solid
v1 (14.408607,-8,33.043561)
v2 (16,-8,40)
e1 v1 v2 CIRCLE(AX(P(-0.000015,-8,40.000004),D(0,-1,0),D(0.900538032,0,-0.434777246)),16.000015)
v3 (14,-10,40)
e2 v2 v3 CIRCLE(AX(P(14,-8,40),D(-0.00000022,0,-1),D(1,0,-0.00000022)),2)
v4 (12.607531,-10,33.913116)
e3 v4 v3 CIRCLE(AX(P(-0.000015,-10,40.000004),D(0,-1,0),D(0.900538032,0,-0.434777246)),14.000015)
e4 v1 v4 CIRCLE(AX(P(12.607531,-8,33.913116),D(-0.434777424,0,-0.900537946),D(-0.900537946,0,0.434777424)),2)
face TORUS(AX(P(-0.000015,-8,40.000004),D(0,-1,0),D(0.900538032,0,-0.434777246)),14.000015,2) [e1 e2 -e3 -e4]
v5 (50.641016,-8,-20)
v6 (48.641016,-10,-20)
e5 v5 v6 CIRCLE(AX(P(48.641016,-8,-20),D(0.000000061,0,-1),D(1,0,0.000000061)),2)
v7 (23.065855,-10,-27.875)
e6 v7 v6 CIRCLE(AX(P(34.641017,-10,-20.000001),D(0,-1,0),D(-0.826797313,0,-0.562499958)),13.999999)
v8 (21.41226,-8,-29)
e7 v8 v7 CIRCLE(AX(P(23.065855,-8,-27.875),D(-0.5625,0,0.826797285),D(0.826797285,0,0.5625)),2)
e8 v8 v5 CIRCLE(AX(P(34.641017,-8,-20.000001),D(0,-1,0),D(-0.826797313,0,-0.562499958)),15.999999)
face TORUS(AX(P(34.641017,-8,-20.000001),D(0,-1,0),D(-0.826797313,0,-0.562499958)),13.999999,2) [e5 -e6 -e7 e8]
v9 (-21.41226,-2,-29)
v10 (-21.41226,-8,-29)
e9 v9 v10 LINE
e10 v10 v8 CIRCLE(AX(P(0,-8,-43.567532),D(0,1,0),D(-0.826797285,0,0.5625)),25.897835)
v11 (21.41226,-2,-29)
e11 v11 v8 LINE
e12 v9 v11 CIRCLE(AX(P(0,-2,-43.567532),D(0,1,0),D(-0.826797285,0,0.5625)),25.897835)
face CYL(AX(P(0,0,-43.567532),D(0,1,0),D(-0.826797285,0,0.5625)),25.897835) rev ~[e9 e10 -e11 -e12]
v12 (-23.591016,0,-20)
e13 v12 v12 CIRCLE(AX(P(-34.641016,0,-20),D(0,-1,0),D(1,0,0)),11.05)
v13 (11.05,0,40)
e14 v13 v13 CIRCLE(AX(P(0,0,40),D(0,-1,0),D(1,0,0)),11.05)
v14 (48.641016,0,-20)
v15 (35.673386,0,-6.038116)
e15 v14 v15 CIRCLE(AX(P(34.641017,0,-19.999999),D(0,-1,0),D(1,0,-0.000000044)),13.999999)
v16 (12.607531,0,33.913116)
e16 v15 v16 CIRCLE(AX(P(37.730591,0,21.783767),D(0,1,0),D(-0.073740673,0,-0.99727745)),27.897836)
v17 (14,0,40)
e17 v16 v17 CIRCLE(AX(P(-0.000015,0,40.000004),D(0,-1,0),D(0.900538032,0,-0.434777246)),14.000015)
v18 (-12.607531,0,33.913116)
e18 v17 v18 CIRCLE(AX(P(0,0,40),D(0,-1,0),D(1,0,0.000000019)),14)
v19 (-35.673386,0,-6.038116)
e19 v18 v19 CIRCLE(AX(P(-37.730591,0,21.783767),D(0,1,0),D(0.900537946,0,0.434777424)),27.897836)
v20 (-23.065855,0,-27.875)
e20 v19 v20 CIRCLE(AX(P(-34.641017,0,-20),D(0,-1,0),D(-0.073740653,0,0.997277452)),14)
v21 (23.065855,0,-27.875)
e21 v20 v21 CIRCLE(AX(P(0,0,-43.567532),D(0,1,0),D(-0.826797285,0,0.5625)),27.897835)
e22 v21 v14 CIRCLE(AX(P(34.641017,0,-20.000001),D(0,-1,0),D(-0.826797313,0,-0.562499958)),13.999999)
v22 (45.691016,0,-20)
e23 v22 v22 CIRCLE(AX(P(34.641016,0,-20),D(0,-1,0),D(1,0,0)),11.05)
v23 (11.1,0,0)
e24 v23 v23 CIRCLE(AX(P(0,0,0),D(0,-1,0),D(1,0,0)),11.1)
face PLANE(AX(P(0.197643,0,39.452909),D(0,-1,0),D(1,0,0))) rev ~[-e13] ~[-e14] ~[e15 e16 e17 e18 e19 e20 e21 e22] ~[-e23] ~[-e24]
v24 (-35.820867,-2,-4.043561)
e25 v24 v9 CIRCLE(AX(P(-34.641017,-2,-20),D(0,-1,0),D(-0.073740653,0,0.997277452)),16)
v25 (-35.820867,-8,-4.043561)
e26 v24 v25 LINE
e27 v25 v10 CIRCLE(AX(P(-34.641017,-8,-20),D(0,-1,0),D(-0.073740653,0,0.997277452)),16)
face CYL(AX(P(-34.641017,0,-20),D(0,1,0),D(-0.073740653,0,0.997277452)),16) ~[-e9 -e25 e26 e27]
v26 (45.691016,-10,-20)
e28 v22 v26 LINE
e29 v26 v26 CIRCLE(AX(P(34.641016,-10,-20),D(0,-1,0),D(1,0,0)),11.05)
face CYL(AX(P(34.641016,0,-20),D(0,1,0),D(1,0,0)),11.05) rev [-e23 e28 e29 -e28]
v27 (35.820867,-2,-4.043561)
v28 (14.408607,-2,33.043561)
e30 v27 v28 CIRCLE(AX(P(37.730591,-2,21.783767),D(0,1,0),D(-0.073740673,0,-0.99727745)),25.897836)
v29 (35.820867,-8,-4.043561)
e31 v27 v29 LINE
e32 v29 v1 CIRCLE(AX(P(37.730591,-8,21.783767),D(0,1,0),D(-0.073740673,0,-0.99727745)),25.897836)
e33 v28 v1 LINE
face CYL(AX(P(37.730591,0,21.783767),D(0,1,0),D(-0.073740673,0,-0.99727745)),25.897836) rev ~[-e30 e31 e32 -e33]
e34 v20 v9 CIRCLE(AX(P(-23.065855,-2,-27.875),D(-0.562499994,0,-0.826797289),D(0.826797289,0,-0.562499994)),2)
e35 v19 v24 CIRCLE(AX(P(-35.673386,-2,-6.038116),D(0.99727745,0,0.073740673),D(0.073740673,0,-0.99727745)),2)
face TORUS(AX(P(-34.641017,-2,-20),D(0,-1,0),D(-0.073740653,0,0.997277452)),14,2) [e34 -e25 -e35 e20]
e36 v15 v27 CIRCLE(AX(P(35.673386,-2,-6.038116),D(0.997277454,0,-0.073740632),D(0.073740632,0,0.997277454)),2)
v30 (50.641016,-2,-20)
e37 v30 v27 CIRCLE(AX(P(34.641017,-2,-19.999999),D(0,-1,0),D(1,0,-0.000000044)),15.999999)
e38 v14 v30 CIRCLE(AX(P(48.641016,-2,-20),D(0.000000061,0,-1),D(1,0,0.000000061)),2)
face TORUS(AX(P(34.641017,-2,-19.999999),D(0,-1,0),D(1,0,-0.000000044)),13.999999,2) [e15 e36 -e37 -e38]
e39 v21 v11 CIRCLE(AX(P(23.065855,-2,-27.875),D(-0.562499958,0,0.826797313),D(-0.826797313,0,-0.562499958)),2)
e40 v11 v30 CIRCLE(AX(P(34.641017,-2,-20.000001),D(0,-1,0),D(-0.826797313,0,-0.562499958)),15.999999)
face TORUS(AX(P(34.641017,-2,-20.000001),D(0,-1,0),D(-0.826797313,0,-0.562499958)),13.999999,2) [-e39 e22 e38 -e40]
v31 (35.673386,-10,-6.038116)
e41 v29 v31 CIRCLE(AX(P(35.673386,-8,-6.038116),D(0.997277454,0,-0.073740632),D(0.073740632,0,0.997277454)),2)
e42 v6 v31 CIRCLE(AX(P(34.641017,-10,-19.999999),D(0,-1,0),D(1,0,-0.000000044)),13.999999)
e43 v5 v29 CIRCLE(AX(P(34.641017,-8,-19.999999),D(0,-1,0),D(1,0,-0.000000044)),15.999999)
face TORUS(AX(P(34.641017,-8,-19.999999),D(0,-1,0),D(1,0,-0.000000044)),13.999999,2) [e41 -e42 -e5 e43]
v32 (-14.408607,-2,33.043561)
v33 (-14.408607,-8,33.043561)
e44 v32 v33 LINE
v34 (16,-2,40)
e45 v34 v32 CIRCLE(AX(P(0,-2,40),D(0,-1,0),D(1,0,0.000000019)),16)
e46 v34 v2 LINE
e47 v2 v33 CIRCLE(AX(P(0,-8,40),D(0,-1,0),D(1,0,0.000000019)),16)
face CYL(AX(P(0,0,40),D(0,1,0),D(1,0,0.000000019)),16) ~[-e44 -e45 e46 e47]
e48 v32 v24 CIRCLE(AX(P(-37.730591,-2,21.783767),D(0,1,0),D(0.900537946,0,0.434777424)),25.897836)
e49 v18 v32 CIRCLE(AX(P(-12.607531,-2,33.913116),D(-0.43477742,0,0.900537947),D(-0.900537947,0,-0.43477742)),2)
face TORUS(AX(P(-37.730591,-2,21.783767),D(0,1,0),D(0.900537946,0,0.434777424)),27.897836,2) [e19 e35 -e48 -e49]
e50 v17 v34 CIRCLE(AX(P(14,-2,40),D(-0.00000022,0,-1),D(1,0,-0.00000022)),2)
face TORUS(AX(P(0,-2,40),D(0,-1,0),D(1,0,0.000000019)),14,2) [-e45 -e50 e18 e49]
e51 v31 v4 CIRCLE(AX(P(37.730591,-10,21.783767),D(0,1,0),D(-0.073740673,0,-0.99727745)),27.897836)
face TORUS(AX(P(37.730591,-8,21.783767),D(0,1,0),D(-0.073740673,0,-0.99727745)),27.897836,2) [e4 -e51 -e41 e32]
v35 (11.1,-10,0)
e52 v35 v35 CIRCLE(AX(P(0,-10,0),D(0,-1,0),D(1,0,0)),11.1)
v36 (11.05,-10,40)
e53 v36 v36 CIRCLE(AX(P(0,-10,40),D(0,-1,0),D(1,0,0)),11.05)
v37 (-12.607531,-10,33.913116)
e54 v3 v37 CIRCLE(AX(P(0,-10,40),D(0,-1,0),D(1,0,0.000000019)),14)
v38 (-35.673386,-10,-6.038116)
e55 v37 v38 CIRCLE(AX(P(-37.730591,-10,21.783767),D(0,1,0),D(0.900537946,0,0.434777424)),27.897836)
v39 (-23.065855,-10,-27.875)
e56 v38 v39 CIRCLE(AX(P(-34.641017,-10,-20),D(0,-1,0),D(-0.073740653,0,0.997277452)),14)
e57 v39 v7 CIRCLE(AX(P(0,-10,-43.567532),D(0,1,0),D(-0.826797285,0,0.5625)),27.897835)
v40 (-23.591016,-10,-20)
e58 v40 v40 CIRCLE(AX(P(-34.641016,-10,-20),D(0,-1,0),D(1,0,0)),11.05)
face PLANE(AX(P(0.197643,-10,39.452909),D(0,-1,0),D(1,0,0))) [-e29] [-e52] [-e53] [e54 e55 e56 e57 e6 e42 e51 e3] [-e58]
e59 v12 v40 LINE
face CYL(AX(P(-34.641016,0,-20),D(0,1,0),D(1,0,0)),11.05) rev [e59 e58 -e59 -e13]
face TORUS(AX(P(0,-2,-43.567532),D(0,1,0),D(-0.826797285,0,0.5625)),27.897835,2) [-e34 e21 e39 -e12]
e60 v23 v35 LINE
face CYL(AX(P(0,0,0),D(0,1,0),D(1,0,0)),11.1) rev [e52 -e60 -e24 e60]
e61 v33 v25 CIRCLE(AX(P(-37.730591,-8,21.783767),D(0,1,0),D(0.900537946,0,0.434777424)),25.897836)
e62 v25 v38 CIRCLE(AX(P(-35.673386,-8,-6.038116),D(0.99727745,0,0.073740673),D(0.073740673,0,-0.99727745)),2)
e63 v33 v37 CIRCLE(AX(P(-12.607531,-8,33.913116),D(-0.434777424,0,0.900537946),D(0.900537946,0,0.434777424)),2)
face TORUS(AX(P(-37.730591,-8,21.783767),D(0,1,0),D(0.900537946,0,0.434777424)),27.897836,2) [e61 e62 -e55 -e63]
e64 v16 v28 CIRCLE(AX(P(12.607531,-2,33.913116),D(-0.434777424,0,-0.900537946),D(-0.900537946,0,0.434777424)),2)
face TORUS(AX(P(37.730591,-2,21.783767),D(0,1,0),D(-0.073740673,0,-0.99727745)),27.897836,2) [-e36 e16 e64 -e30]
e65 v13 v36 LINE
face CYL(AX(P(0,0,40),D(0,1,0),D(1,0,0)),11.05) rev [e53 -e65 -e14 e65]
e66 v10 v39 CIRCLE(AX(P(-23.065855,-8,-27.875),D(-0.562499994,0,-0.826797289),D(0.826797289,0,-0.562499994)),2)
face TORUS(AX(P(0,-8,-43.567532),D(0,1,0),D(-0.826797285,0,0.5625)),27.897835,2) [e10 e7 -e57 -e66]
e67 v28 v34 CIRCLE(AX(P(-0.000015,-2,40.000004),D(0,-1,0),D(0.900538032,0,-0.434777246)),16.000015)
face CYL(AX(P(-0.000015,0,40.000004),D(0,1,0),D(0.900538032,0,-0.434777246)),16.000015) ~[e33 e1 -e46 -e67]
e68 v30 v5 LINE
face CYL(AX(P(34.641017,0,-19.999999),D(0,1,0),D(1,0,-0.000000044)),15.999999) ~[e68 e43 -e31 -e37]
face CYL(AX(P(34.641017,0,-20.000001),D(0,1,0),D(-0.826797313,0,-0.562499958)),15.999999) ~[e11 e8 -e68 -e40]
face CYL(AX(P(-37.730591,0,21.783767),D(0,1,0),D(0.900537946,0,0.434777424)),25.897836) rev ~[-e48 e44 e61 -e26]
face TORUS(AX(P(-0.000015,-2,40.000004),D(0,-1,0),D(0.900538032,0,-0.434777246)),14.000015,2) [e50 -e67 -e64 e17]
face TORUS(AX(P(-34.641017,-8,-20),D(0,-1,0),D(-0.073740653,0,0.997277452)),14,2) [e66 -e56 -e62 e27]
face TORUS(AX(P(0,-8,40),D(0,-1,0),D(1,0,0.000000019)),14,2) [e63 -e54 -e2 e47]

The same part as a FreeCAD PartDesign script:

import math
import FreeCAD as App
import Part
import Sketcher


def edges_at(feature, points):
    """Names of the edges that pass closest to the given points."""
    edges = feature.Shape.Edges
    near = lambda p: min(range(len(edges)), key=lambda i: edges[i].distToShape(Part.Vertex(*p))[0])
    return sorted({f"Edge{near(p) + 1}" for p in points})

doc = App.newDocument("Part")
params = doc.addObject("Spreadsheet::Sheet", "Params")
for row, (alias, value) in enumerate([
    ("sketch1_radius", "16 mm"),
    ("sketch1_diameter", "22.1 mm"),
    ("sketch1_diameter2", "22.2 mm"),
    ("pad1_length", "10 mm"),
    ("fillet_radius", "2 mm"),
    ("fillet2_radius", "2 mm"),
], start=1):
    params.set(f"A{row}", alias)
    params.set(f"B{row}", "=" + value)
    params.setAlias(f"B{row}", alias)

body = doc.addObject("PartDesign::Body", "Body")

sketch1 = body.newObject("Sketcher::SketchObject", "Sketch")
sketch1.AttachmentSupport = (doc.getObject("XZ_Plane"), [""])
sketch1.MapMode = "FlatFace"
sketch1.addGeometry(Part.ArcOfCircle(Part.Circle(App.Vector(-0.000015, 40.000004, 0), App.Vector(0, 0, 1), 16.000015), math.radians(-25.771121), math.radians(-0.000013)), False)
sketch1.addGeometry(Part.ArcOfCircle(Part.Circle(App.Vector(0, 40, 0), App.Vector(0, 0, 1), 16), math.radians(0.000001), math.radians(205.771132)), False)
sketch1.addGeometry(Part.ArcOfCircle(Part.Circle(App.Vector(-37.730591, 21.783767, 0), App.Vector(0, 0, 1), 25.897836), math.radians(-85.771132), math.radians(25.771132)), False)
sketch1.addGeometry(Part.ArcOfCircle(Part.Circle(App.Vector(-34.641017, -20, 0), App.Vector(0, 0, 1), 16), math.radians(94.228867), math.radians(325.771134)), False)
sketch1.addGeometry(Part.ArcOfCircle(Part.Circle(App.Vector(0, -43.567532, 0), App.Vector(0, 0, 1), 25.897835), math.radians(34.228866), math.radians(145.771134)), False)
sketch1.addGeometry(Part.ArcOfCircle(Part.Circle(App.Vector(34.641017, -20.000001, 0), App.Vector(0, 0, 1), 15.999999), math.radians(-145.771137), math.radians(0.000003)), False)
sketch1.addGeometry(Part.ArcOfCircle(Part.Circle(App.Vector(34.641017, -19.999999, 0), App.Vector(0, 0, 1), 15.999999), math.radians(-0.000003), math.radians(85.771135)), False)
sketch1.addGeometry(Part.ArcOfCircle(Part.Circle(App.Vector(37.730591, 21.783767, 0), App.Vector(0, 0, 1), 25.897836), math.radians(154.228868), math.radians(265.771132)), False)
sketch1.addGeometry(Part.Circle(App.Vector(-34.641016, -20, 0), App.Vector(0, 0, 1), 11.05), False)
sketch1.addGeometry(Part.Circle(App.Vector(34.641016, -20, 0), App.Vector(0, 0, 1), 11.05), False)
sketch1.addGeometry(Part.Circle(App.Vector(0, 0, 0), App.Vector(0, 0, 1), 11.1), False)
sketch1.addGeometry(Part.Circle(App.Vector(0, 40, 0), App.Vector(0, 0, 1), 11.05), False)
sketch1.addConstraint(Sketcher.Constraint("Tangent", 0, 2, 1, 1))
sketch1.addConstraint(Sketcher.Constraint("Tangent", 1, 2, 2, 2))
sketch1.addConstraint(Sketcher.Constraint("Tangent", 2, 1, 3, 1))
sketch1.addConstraint(Sketcher.Constraint("Tangent", 3, 2, 4, 2))
sketch1.addConstraint(Sketcher.Constraint("Tangent", 4, 1, 5, 1))
sketch1.addConstraint(Sketcher.Constraint("Tangent", 5, 2, 6, 1))
sketch1.addConstraint(Sketcher.Constraint("Tangent", 6, 2, 7, 2))
sketch1.addConstraint(Sketcher.Constraint("Tangent", 7, 1, 0, 1))
sketch1.addConstraint(Sketcher.Constraint("Coincident", 10, 3, -1, 1))
sketch1.addConstraint(Sketcher.Constraint("Coincident", 8, 3, 3, 3))
sketch1.addConstraint(Sketcher.Constraint("Coincident", 9, 3, 5, 3))
sketch1.addConstraint(Sketcher.Constraint("Coincident", 11, 3, 1, 3))
sketch1.addConstraint(Sketcher.Constraint("Equal", 1, 3))
sketch1.addConstraint(Sketcher.Constraint("Equal", 2, 4))
sketch1.addConstraint(Sketcher.Constraint("Equal", 3, 5))
sketch1.addConstraint(Sketcher.Constraint("Equal", 5, 6))
sketch1.addConstraint(Sketcher.Constraint("Equal", 4, 7))
sketch1.addConstraint(Sketcher.Constraint("Equal", 8, 9))
sketch1.addConstraint(Sketcher.Constraint("Equal", 9, 11))
sketch1.addConstraint(Sketcher.Constraint("Symmetric", 3, 3, 5, 3, -2))
sketch1.addConstraint(Sketcher.Constraint("Symmetric", 1, 2, 7, 1, -2))
sketch1.addConstraint(Sketcher.Constraint("Horizontal", 11, 3, 0, 2))
sketch1.addConstraint(Sketcher.Constraint("Horizontal", 9, 3, 5, 2))
sketch1.addConstraint(Sketcher.Constraint("Radius", 1, 16.0))
sketch1.addConstraint(Sketcher.Constraint("Diameter", 8, 22.1))
sketch1.addConstraint(Sketcher.Constraint("Diameter", 10, 22.2))
sketch1.addConstraint(Sketcher.Constraint("DistanceY", -1, 1, 1, 3, 40.0))
sketch1.addConstraint(Sketcher.Constraint("DistanceY", 3, 3, -1, 1, 20.0))
sketch1.addConstraint(Sketcher.Constraint("DistanceY", 3, 2, -1, 1, 29.0))
sketch1.addConstraint(Sketcher.Constraint("Radius", 2, 25.897836))
sketch1.setExpression("Constraints[23]", "Params.sketch1_radius")
sketch1.setExpression("Constraints[24]", "Params.sketch1_diameter")
sketch1.setExpression("Constraints[25]", "Params.sketch1_diameter2")
pad1 = body.newObject("PartDesign::Pad", "Pad")
pad1.Profile = sketch1
pad1.setExpression("Length", "Params.pad1_length")
doc.recompute()

fillet = body.newObject("PartDesign::Fillet", "Fillet")
fillet.Base = (pad1, edges_at(pad1, [
    (-15.302, -10, 8.835),
    (-48.497, -10, -28),
    (0, -10, -17.67),
    (39.35, -10, -35.292),
    (15.302, -10, 8.835),
    (-3.568, -10, 55.597),
]))
fillet.setExpression("Radius", "Params.fillet_radius")
doc.recompute()

fillet2 = body.newObject("PartDesign::Fillet", "Fillet001")
fillet2.Base = (fillet, edges_at(fillet, [
    (39.35, 0, -35.292),
    (0, 0, -17.67),
    (-48.497, 0, -28),
    (-15.302, 0, 8.835),
    (-3.568, 0, 55.597),
    (15.302, 0, 8.835),
]))
fillet2.setExpression("Radius", "Params.fillet2_radius")

doc.recompute()
